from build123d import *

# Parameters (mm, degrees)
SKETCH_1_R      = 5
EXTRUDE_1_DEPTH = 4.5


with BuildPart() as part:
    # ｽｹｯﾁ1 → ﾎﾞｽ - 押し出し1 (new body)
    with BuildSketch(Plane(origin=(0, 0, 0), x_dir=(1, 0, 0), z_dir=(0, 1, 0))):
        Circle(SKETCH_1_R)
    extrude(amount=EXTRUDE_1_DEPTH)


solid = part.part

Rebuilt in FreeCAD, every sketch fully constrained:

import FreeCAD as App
import Part
import Sketcher

V = App.Vector
Q = App.Units.Quantity

doc = App.newDocument("Part")
params = doc.addObject("Spreadsheet::Sheet", "Params")
for row, (alias, value) in enumerate([
    ("sketch1_diameter", "10 mm"),
    ("pad1_length", "4.5 mm"),
], start=1):
    params.set(f"A{row}", alias)
    params.set(f"B{row}", "=" + value)
    params.setAlias(f"B{row}", alias)

body = doc.addObject("PartDesign::Body", "Body")

sketch1 = body.newObject("Sketcher::SketchObject", "Sketch")
sketch1.AttachmentSupport = (doc.getObject("XZ_Plane"), [""])
sketch1.MapMode = "FlatFace"
sketch1.addGeometry(Part.Circle(V(0, 0, 0), V(0, 0, 1), 5), False)
sketch1.addConstraint([
    Sketcher.Constraint("Coincident", 0, 3, -1, 1),
    Sketcher.Constraint("Diameter", 0, Q("10 mm")),
])
sketch1.setExpression("Constraints[1]", "Params.sketch1_diameter")
pad1 = body.newObject("PartDesign::Pad", "Pad")
pad1.Profile = sketch1
pad1.setExpression("Length", "Params.pad1_length")
pad1.Reversed = True

doc.recompute()
